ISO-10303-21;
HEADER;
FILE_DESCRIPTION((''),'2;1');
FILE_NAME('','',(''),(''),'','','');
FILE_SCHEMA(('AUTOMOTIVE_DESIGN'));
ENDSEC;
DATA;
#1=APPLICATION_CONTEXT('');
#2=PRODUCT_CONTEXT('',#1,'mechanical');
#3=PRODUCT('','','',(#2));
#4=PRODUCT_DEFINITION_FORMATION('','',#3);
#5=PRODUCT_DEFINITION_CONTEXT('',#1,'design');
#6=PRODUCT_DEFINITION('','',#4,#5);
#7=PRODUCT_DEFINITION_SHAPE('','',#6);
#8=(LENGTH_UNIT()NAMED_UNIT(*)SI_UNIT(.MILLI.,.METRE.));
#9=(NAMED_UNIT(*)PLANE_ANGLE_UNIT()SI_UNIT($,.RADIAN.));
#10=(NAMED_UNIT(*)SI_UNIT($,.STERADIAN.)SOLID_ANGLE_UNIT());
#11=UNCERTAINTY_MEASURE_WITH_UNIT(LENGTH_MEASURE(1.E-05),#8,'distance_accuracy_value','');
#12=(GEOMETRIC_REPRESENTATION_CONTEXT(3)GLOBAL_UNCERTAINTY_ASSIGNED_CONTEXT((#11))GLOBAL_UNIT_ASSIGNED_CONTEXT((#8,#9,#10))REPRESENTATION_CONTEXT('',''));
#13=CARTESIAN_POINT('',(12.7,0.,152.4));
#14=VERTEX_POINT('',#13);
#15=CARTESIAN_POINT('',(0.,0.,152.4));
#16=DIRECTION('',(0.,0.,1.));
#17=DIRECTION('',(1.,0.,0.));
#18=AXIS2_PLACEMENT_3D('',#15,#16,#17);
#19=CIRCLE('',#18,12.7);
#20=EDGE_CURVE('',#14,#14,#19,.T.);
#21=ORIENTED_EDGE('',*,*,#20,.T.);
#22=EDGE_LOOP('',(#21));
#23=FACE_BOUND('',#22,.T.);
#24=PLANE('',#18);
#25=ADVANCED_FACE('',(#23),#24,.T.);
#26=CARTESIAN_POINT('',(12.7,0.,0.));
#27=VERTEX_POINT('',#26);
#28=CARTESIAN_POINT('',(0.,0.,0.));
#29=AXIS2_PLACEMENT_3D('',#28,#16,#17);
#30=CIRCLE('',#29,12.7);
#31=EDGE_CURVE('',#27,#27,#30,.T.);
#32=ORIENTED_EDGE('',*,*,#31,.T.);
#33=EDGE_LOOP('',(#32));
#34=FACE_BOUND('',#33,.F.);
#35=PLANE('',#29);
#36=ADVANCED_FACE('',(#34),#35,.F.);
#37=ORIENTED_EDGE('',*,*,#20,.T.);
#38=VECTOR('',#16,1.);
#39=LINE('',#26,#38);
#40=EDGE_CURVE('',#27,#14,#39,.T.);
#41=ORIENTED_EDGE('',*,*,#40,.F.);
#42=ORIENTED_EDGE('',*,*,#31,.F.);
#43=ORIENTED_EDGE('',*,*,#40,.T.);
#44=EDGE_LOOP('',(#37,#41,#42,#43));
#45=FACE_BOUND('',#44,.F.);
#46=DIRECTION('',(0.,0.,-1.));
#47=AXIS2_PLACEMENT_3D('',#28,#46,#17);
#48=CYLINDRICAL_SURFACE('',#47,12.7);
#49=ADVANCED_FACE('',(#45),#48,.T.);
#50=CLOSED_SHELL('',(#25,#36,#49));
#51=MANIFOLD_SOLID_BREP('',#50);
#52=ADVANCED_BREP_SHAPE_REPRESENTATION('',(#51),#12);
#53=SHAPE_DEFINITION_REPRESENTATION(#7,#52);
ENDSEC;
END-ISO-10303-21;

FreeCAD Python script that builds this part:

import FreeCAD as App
import Part
import Sketcher
Q = App.Units.Quantity

doc = App.newDocument("Part")
body = doc.addObject("PartDesign::Body", "Body")

# Sketch on XY plane
sketch1 = body.newObject("Sketcher::SketchObject", "Sketch")
sketch1.AttachmentSupport = (doc.getObject("XY_Plane"), [""])
sketch1.MapMode = "FlatFace"
sketch1.addGeometry(Part.Circle(App.Vector(0, 0, 0), App.Vector(0, 0, 1), 13), False)
sketch1.addConstraint(Sketcher.Constraint("Coincident", 0, 3, -1, 1))
sketch1.addConstraint(Sketcher.Constraint("Diameter", 0, Q("1 in")))
pad1 = body.newObject("PartDesign::Pad", "Pad")
pad1.Profile = sketch1
pad1.Length = Q("6 in")

doc.recompute()
